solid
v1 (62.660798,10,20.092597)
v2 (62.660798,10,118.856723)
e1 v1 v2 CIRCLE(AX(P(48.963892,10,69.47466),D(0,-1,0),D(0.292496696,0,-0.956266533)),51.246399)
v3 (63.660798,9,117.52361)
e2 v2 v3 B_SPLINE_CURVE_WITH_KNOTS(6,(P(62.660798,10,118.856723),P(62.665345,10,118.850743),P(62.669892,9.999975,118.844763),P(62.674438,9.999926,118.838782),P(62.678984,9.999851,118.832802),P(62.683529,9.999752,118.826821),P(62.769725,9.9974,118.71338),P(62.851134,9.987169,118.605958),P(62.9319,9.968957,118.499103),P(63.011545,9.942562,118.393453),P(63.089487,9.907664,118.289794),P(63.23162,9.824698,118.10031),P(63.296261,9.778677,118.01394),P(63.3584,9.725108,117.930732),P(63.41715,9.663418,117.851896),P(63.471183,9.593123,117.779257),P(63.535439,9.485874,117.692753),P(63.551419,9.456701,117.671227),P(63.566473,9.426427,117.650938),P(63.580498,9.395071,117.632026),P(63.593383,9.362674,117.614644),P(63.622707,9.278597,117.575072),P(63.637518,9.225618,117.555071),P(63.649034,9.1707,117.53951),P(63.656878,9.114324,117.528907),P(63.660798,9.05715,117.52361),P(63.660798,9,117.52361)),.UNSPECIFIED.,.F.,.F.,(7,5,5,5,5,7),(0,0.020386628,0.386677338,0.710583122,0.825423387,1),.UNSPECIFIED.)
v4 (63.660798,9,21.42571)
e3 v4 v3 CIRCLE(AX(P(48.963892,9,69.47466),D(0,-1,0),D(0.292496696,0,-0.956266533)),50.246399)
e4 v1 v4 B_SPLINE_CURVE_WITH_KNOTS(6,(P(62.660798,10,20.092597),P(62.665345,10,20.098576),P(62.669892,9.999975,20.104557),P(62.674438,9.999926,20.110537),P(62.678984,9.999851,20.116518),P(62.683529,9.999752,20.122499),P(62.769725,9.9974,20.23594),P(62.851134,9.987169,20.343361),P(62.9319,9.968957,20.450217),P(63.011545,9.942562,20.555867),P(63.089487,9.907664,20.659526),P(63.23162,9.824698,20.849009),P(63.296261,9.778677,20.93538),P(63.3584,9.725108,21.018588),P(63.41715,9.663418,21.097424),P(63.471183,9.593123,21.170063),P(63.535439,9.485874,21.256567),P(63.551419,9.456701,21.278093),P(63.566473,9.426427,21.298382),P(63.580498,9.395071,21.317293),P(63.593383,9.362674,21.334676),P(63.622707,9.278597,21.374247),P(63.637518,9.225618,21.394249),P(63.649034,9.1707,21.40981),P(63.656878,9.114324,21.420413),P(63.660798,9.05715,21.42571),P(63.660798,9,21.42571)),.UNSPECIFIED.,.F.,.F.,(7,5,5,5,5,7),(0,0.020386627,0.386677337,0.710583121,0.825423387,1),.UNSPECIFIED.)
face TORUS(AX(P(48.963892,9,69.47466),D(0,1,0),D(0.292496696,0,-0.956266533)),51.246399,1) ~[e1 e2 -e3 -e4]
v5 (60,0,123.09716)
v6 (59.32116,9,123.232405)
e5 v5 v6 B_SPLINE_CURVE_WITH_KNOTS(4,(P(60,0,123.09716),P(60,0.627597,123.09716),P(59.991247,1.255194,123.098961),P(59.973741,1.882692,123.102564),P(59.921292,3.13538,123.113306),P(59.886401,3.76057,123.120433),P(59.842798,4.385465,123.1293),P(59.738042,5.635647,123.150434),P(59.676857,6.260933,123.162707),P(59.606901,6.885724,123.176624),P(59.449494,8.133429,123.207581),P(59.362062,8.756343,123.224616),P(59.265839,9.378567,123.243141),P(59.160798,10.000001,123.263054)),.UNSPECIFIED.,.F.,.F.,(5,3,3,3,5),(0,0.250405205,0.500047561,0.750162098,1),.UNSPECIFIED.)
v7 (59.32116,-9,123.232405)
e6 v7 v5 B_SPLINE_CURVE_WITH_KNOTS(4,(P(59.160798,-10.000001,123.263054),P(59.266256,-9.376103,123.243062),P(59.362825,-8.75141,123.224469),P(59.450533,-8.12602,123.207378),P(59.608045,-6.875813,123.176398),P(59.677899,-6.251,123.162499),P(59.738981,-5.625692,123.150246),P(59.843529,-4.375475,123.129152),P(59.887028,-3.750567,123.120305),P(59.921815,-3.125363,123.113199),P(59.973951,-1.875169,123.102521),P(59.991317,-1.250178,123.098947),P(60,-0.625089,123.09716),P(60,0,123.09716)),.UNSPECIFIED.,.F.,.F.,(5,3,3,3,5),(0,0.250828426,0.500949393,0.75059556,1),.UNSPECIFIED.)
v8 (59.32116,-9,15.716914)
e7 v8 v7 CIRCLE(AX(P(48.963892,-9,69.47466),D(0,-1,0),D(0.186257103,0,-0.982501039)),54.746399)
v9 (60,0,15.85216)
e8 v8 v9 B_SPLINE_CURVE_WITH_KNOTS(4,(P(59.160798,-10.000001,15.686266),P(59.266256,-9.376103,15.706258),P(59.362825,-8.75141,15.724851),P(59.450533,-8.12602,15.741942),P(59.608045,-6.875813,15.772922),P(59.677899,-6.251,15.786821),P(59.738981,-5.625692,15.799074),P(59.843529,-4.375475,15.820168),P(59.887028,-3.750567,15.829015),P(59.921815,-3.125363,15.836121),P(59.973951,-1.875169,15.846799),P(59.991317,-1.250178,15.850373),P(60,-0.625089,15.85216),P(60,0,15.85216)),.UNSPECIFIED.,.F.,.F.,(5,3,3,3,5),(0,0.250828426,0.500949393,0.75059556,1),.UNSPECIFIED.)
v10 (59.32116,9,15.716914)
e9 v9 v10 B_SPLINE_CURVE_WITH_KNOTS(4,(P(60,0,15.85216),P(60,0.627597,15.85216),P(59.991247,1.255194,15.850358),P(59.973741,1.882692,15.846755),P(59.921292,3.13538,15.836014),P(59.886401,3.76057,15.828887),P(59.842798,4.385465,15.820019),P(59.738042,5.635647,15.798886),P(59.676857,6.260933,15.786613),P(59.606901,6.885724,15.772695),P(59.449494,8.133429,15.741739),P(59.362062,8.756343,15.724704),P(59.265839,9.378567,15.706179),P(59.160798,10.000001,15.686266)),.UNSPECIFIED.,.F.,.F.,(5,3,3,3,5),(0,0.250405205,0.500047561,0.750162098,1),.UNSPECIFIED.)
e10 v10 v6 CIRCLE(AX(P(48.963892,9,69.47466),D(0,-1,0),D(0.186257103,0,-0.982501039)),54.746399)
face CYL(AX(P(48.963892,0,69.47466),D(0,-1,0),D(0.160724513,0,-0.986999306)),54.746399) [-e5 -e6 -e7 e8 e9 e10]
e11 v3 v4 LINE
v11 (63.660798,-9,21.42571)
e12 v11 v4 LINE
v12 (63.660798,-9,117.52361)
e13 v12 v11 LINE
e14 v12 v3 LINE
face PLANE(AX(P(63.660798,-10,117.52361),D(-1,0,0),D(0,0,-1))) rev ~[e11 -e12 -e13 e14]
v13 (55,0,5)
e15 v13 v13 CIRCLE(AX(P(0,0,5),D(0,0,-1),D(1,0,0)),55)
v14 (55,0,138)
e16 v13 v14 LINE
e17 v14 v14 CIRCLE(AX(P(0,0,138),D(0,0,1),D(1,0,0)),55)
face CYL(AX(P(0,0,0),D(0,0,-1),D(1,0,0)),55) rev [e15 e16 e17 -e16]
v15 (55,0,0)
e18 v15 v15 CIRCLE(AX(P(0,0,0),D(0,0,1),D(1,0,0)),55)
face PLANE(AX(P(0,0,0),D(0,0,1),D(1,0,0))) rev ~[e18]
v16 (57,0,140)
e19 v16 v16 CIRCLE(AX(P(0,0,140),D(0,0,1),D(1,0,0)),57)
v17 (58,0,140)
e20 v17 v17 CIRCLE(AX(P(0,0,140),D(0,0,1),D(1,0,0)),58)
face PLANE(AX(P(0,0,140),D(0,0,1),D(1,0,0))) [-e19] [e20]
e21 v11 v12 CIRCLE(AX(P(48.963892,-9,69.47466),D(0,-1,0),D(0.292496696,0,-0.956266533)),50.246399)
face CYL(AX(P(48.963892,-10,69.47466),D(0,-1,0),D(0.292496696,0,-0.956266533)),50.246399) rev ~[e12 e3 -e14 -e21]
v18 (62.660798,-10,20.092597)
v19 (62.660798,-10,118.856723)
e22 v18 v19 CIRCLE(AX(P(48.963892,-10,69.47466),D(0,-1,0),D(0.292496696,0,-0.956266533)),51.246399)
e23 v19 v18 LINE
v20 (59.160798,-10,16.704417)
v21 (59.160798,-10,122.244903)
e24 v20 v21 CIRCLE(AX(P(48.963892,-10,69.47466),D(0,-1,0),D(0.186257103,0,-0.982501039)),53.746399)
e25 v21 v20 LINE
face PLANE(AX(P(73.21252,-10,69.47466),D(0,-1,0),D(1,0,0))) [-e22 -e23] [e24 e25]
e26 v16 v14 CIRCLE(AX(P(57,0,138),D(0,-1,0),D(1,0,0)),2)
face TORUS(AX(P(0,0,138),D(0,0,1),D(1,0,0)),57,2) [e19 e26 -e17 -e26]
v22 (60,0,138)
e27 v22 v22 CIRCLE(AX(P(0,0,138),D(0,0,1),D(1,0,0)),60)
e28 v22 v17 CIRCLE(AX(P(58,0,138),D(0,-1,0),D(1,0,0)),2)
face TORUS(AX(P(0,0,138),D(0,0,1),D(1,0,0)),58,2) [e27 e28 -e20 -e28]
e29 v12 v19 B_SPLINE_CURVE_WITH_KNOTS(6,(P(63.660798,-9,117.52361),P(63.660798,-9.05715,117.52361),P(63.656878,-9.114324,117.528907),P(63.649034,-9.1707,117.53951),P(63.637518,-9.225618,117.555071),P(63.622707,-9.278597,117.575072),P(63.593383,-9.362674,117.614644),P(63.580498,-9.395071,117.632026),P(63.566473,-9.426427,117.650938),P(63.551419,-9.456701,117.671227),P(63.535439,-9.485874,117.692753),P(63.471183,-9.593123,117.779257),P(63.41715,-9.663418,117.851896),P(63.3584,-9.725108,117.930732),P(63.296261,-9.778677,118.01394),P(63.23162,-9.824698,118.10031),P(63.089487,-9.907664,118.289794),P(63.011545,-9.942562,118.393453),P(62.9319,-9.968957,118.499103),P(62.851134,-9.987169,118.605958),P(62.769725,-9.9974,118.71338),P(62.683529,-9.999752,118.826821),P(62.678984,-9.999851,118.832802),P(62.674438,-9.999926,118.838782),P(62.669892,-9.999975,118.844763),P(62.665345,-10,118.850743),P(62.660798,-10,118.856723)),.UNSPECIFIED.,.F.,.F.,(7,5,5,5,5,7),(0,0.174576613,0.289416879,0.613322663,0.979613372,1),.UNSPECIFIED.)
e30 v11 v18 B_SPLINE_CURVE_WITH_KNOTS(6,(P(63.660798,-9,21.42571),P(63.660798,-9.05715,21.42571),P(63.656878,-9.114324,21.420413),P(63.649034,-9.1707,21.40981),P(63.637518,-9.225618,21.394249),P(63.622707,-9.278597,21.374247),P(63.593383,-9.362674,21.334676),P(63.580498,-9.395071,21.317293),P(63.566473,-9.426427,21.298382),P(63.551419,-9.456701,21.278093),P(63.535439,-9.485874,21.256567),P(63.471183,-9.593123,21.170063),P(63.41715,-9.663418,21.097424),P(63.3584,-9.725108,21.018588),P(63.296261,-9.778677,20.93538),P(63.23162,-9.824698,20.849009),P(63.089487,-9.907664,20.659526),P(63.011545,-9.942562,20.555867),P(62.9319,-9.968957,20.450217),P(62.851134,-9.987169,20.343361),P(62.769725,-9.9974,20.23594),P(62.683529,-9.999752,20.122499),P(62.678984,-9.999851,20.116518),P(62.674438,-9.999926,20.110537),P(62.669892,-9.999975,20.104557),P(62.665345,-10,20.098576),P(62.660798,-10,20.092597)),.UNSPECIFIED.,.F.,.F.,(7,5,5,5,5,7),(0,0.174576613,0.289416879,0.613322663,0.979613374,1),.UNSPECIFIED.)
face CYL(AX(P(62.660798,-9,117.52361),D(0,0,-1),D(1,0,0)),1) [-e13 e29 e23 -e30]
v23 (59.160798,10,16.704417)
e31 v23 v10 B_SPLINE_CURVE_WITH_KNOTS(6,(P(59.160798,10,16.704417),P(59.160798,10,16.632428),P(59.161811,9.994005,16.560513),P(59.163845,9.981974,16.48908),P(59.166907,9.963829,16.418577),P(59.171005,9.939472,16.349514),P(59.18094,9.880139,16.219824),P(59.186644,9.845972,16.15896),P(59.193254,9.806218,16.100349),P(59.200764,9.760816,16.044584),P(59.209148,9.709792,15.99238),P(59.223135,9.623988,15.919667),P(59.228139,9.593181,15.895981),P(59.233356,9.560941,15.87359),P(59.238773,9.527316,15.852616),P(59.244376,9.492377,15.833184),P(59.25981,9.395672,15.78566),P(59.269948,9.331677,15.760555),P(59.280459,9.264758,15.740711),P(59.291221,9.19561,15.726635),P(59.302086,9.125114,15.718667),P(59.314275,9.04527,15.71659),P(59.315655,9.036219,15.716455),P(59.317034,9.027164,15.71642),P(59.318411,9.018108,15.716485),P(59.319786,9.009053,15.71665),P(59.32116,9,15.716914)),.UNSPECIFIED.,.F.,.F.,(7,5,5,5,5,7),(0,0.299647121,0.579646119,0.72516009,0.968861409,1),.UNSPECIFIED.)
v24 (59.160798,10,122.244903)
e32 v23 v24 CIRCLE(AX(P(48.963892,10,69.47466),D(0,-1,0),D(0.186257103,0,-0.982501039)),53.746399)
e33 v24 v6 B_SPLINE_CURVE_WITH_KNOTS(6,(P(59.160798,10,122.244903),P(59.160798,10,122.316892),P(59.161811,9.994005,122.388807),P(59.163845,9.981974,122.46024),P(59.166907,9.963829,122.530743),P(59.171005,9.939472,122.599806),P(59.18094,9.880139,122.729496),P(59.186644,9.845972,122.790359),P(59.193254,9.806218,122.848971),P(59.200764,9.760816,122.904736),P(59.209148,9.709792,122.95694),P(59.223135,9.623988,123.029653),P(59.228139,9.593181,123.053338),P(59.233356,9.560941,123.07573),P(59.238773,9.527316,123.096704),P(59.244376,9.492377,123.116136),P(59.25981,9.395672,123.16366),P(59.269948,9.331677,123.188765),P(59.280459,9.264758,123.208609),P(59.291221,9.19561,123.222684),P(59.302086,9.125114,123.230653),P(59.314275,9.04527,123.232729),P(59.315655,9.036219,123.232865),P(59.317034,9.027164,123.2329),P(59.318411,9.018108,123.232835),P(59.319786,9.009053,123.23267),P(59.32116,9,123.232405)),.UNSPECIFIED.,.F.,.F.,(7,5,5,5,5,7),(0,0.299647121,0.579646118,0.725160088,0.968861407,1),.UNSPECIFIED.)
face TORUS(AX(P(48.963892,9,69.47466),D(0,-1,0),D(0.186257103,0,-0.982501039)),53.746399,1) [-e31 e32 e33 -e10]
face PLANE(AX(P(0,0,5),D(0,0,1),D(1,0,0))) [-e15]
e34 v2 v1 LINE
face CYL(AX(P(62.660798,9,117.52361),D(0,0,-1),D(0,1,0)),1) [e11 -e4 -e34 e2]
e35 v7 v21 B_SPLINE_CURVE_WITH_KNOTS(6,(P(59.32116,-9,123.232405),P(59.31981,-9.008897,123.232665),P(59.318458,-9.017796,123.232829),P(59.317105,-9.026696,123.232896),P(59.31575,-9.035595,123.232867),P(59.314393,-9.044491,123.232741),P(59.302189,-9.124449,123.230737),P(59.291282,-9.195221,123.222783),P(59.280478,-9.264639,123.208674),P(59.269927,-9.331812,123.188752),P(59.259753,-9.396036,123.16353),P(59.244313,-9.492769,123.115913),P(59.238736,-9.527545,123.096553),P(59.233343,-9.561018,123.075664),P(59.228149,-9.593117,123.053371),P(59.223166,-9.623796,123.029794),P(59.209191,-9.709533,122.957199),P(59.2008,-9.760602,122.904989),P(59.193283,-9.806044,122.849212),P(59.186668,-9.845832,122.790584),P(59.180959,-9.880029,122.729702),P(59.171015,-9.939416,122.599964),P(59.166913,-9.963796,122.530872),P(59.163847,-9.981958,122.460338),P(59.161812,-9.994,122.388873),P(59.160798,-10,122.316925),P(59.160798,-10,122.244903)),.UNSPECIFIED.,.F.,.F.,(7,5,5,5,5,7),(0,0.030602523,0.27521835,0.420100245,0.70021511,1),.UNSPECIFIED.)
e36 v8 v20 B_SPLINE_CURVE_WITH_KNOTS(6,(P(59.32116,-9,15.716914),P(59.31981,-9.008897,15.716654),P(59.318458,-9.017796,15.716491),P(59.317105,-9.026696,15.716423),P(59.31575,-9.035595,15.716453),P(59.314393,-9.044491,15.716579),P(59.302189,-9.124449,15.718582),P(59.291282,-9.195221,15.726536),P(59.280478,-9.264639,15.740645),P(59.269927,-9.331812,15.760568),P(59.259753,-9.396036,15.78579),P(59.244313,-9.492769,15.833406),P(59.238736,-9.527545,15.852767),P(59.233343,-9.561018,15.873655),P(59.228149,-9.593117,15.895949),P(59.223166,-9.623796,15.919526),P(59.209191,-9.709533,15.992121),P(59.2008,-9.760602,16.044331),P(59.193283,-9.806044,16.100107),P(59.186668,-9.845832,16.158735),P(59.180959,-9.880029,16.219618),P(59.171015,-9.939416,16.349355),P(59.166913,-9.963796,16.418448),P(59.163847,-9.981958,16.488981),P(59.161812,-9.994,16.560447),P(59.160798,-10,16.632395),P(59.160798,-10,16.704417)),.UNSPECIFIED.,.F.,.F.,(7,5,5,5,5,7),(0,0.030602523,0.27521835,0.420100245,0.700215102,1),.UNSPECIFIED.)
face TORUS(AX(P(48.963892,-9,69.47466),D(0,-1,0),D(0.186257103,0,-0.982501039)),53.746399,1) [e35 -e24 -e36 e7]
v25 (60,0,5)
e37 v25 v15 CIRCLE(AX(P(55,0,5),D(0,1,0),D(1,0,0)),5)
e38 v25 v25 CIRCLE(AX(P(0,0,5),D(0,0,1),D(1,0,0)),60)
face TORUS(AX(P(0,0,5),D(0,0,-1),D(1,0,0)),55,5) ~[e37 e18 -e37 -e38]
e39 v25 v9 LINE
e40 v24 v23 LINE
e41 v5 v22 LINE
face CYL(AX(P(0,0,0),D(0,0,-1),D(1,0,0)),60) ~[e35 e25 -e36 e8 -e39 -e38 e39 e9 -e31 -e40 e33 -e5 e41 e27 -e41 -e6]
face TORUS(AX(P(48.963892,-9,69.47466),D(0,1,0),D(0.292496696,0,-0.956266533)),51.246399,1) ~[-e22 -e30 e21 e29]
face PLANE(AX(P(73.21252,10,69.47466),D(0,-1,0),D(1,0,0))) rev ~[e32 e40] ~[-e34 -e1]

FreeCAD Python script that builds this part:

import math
import FreeCAD as App
import Part
import Sketcher


def edges_at(feature, points):
    """Names of the edges that pass closest to the given points."""
    edges = feature.Shape.Edges
    near = lambda p: min(range(len(edges)), key=lambda i: edges[i].distToShape(Part.Vertex(*p))[0])
    return sorted({f"Edge{near(p) + 1}" for p in points})


def faces_at(feature, points):
    """Names of the faces that lie closest to the given points."""
    faces = feature.Shape.Faces
    near = lambda p: min(range(len(faces)), key=lambda i: faces[i].distToShape(Part.Vertex(*p))[0])
    return sorted({f"Face{near(p) + 1}" for p in points})

doc = App.newDocument("Part")
params = doc.addObject("Spreadsheet::Sheet", "Params")
for row, (alias, value) in enumerate([
    ("sketch1_diameter", "120 mm"),
    ("pad1_length", "140 mm"),
    ("thickness_wall", "5 mm"),
    ("fillet_radius", "2 mm"),
    ("pad2_length", "20 mm"),
    ("pocket1_length", "54 mm"),
    ("fillet2_radius", "1 mm"),
    ("fillet3_radius", "5 mm"),
], start=1):
    params.set(f"A{row}", alias)
    params.set(f"B{row}", "=" + value)
    params.setAlias(f"B{row}", alias)

body = doc.addObject("PartDesign::Body", "Body")

# Sketch on XY plane
sketch1 = body.newObject("Sketcher::SketchObject", "Sketch")
sketch1.AttachmentSupport = (doc.getObject("XY_Plane"), [""])
sketch1.MapMode = "FlatFace"
sketch1.addGeometry(Part.Circle(App.Vector(0, 0, 0), App.Vector(0, 0, 1), 60), False)
sketch1.addConstraint([
    Sketcher.Constraint("Coincident", 0, 3, -1, 1),
    Sketcher.Constraint("Diameter", 0, 120.0),
])
sketch1.setExpression("Constraints[1]", "Params.sketch1_diameter")
pad1 = body.newObject("PartDesign::Pad", "Pad")
pad1.Profile = sketch1
pad1.setExpression("Length", "Params.pad1_length")
doc.recompute()

thickness = body.newObject("PartDesign::Thickness", "Thickness")
thickness.Base = (pad1, faces_at(pad1, [(0, 0, 140)]))
thickness.setExpression("Value", "Params.thickness_wall")
thickness.Reversed = True
thickness.Join = "Arc"
doc.recompute()

fillet = body.newObject("PartDesign::Fillet", "Fillet")
fillet.Base = (thickness, edges_at(thickness, [(-55, 0, 140), (-60, 0, 140)]))
fillet.setExpression("Radius", "Params.fillet_radius")

# Sketch on XZ plane
sketch2 = body.newObject("Sketcher::SketchObject", "Sketch001")
sketch2.AttachmentSupport = (doc.getObject("XZ_Plane"), [""])
sketch2.MapMode = "FlatFace"
sketch2.addGeometry([
    Part.LineSegment(App.Vector(58, 124, 0), App.Vector(58, 15, 0)),
    Part.ArcOfCircle(Part.Circle(App.Vector(49, 69, 0), App.Vector(0, 0, 1), 55), math.radians(-81), math.radians(81)),
], False)
sketch2.addConstraint([
    Sketcher.Constraint("Coincident", 0, 1, 1, 2),
    Sketcher.Constraint("Coincident", 1, 1, 0, 2),
    Sketcher.Constraint("Vertical", 0),
    Sketcher.Constraint("Radius", 1, 54.746399),
    Sketcher.Constraint("DistanceY", 0, 2, 0, 1, 108.069316),
    Sketcher.Constraint("DistanceY", -1, 1, 1, 3, 69.47466),
    Sketcher.Constraint("DistanceX", -1, 1, 0, 1, 57.76298),
])
pad2 = body.newObject("PartDesign::Pad", "Pad001")
pad2.Profile = sketch2
pad2.setExpression("Length", "Params.pad2_length")
pad2.Midplane = True

# Sketch on XZ plane
sketch3 = body.newObject("Sketcher::SketchObject", "Sketch002")
sketch3.AttachmentSupport = (doc.getObject("XZ_Plane"), [""])
sketch3.MapMode = "FlatFace"
sketch3.AttachmentOffset = App.Placement(App.Vector(0, 0, 10), App.Rotation())
sketch3.addGeometry([
    Part.LineSegment(App.Vector(64, 118, 0), App.Vector(64, 21, 0)),
    Part.ArcOfCircle(Part.Circle(App.Vector(49, 69, 0), App.Vector(0, 0, 1), 50), math.radians(-73), math.radians(73)),
], False)
sketch3.addConstraint([
    Sketcher.Constraint("Coincident", 0, 1, 1, 2),
    Sketcher.Constraint("Coincident", 1, 1, 0, 2),
    Sketcher.Constraint("Vertical", 0),
    Sketcher.Constraint("Radius", 1, 50.246399),
    Sketcher.Constraint("DistanceY", 0, 2, 0, 1, 96.097899),
    Sketcher.Constraint("DistanceY", -1, 1, 1, 3, 69.47466),
    Sketcher.Constraint("DistanceX", -1, 1, 1, 3, 48.963892),
])
pocket1 = body.newObject("PartDesign::Pocket", "Pocket")
pocket1.Profile = sketch3
pocket1.setExpression("Length", "Params.pocket1_length")
doc.recompute()

fillet2 = body.newObject("PartDesign::Fillet", "Fillet001")
fillet2.Base = (pocket1, edges_at(pocket1, [
    (99.21, -10, 69.475),
    (63.661, -10, 69.475),
    (63.661, 10, 69.475),
    (99.21, 10, 69.475),
    (103.71, 10, 69.475),
    (103.71, -10, 69.475),
]))
fillet2.setExpression("Radius", "Params.fillet2_radius")
doc.recompute()

fillet3 = body.newObject("PartDesign::Fillet", "Fillet002")
fillet3.Base = (fillet2, edges_at(fillet2, [(-60, 0, 0)]))
fillet3.setExpression("Radius", "Params.fillet3_radius")

doc.recompute()
